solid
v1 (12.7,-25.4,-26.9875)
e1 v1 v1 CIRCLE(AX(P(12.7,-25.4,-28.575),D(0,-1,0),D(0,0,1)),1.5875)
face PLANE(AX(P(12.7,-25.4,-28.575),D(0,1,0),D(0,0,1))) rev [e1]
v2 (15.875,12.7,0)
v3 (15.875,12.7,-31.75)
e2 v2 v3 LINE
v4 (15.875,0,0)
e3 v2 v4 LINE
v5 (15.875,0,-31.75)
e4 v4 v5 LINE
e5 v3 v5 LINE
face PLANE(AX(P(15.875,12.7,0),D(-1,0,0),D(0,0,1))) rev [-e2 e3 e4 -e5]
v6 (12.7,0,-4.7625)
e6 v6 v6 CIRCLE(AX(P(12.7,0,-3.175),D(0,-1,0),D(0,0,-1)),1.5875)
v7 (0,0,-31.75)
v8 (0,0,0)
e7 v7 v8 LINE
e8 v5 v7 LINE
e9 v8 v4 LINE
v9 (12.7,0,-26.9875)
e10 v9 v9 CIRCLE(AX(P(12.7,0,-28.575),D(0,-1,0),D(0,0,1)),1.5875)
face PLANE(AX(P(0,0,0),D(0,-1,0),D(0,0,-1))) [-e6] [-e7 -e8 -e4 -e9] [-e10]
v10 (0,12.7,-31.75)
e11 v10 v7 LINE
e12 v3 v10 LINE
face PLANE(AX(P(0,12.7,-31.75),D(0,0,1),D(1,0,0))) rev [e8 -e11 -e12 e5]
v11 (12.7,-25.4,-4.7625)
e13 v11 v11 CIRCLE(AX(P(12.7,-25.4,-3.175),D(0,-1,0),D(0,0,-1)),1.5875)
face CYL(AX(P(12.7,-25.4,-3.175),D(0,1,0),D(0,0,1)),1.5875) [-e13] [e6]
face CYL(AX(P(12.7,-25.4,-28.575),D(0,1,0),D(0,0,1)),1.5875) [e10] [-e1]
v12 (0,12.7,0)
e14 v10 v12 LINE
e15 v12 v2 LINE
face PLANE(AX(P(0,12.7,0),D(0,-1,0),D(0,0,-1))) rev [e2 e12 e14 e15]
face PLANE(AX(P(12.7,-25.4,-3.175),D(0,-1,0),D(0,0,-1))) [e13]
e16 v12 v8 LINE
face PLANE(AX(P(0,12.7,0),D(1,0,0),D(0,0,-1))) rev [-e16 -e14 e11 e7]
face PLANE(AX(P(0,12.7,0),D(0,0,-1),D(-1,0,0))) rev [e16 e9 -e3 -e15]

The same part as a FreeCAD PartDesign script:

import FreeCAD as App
import Part
import Sketcher
Q = App.Units.Quantity

doc = App.newDocument("Part")
body = doc.addObject("PartDesign::Body", "Body")

# Sketch on XZ plane
sketch1 = body.newObject("Sketcher::SketchObject", "Sketch")
sketch1.AttachmentSupport = (doc.getObject("XZ_Plane"), [""])
sketch1.MapMode = "FlatFace"
sketch1.addGeometry([
    Part.LineSegment(App.Vector(0, -32, 0), App.Vector(0, 0, 0)),
    Part.LineSegment(App.Vector(0, 0, 0), App.Vector(16, 0, 0)),
    Part.LineSegment(App.Vector(16, 0, 0), App.Vector(16, -32, 0)),
    Part.LineSegment(App.Vector(16, -32, 0), App.Vector(0, -32, 0)),
], False)
sketch1.addConstraint([
    Sketcher.Constraint("Coincident", 0, 2, 1, 1),
    Sketcher.Constraint("Coincident", 1, 2, 2, 1),
    Sketcher.Constraint("Coincident", 2, 2, 3, 1),
    Sketcher.Constraint("Coincident", 3, 2, 0, 1),
    Sketcher.Constraint("Vertical", 0),
    Sketcher.Constraint("Horizontal", 1),
    Sketcher.Constraint("Vertical", 2),
    Sketcher.Constraint("Horizontal", 3),
    Sketcher.Constraint("Coincident", 0, 2, -1, 1),
    Sketcher.Constraint("DistanceY", 0, 1, 0, 2, Q("1.25 in")),
    Sketcher.Constraint("DistanceX", 1, 1, 1, 2, Q("0.625 in")),
])
pad1 = body.newObject("PartDesign::Pad", "Pad")
pad1.Profile = sketch1
pad1.Length = Q("0.5 in")
pad1.Reversed = True

# Sketch on XZ plane
sketch2 = body.newObject("Sketcher::SketchObject", "Sketch001")
sketch2.AttachmentSupport = (doc.getObject("XZ_Plane"), [""])
sketch2.MapMode = "FlatFace"
sketch2.addGeometry([
    Part.Circle(App.Vector(12.7, -3.2, 0), App.Vector(0, 0, 1), 1.6),
    Part.Circle(App.Vector(12.7, -28.6, 0), App.Vector(0, 0, 1), 1.6),
], False)
sketch2.addConstraint([
    Sketcher.Constraint("Equal", 0, 1),
    Sketcher.Constraint("Vertical", 0, 3, 1, 3),
    Sketcher.Constraint("Diameter", 0, Q("0.125 in")),
    Sketcher.Constraint("DistanceY", 1, 3, 0, 3, Q("1 in")),
    Sketcher.Constraint("DistanceX", -1, 1, 0, 3, Q("0.5 in")),
    Sketcher.Constraint("DistanceY", 0, 3, -1, 1, Q("0.125 in")),
])
pad2 = body.newObject("PartDesign::Pad", "Pad001")
pad2.Profile = sketch2
pad2.Length = Q("1 in")

doc.recompute()
